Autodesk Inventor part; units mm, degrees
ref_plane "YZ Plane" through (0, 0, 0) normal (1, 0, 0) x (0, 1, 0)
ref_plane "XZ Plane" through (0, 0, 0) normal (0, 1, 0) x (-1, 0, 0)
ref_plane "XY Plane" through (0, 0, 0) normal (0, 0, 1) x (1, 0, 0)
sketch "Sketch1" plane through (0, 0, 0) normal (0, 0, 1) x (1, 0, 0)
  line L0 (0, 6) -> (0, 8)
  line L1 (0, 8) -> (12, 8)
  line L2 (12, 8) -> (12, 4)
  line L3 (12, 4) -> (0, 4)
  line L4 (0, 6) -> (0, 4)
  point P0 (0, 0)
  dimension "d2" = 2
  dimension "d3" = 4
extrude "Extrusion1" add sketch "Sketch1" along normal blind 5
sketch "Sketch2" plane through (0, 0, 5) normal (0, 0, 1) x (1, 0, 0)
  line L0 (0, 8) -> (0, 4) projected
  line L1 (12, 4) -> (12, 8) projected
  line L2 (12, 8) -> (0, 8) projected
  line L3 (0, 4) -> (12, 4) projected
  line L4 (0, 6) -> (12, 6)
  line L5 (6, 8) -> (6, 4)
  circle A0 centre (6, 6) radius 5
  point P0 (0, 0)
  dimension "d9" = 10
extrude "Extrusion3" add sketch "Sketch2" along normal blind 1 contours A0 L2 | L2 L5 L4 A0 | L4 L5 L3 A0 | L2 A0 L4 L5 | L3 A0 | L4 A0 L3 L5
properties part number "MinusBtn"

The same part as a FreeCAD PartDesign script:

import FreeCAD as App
import Part
import Sketcher
from FreeCAD import Vector
Q = App.Units.Quantity


def add_polygon(sketch, points):
    """Adds a closed chain of lines whose ends are joined by coincident constraints."""
    first, n = sketch.GeometryCount, len(points)
    for a, b in zip(points, points[1:] + points[:1]):
        sketch.addGeometry(Part.LineSegment(App.Vector(*a, 0), App.Vector(*b, 0)), False)
    for i in range(n):
        sketch.addConstraint(Sketcher.Constraint("Coincident", first + i, 2, first + (i + 1) % n, 1))

doc = App.newDocument("Part")
params = doc.addObject("Spreadsheet::Sheet", "Params")
for row, (alias, value) in enumerate([
    ("sketch1_height", "4 mm"),
    ("sketch1_width", "12 mm"),
    ("pad1_length", "5 mm"),
    ("sketch2_diameter", "10 mm"),
    ("pad2_length", "1 mm"),
], start=1):
    params.set(f"A{row}", alias)
    params.set(f"B{row}", "=" + value)
    params.setAlias(f"B{row}", alias)

body = doc.addObject("PartDesign::Body", "Body")

sketch1 = body.newObject("Sketcher::SketchObject", "Sketch")
sketch1.AttachmentSupport = (doc.getObject("XY_Plane"), [""])
sketch1.MapMode = "FlatFace"
add_polygon(sketch1, [(0, 8), (0, 4), (12, 4), (12, 8)])
sketch1.addConstraint(Sketcher.Constraint("Vertical", 0))
sketch1.addConstraint(Sketcher.Constraint("Horizontal", 1))
sketch1.addConstraint(Sketcher.Constraint("Vertical", 2))
sketch1.addConstraint(Sketcher.Constraint("Horizontal", 3))
sketch1.addConstraint(Sketcher.Constraint("PointOnObject", 0, 2, -2))
sketch1.addConstraint(Sketcher.Constraint("DistanceY", 0, 2, 0, 1, Q("4 mm")))
sketch1.addConstraint(Sketcher.Constraint("DistanceY", -1, 1, 0, 2, Q("4 mm")))
sketch1.addConstraint(Sketcher.Constraint("DistanceX", 1, 1, 1, 2, Q("12 mm")))
sketch1.setExpression("Constraints[9]", "Params.sketch1_height")
sketch1.setExpression("Constraints[11]", "Params.sketch1_width")
pad1 = body.newObject("PartDesign::Pad", "Pad")
pad1.Profile = sketch1
pad1.setExpression("Length", "Params.pad1_length")

sketch2 = body.newObject("Sketcher::SketchObject", "Sketch001")
sketch2.AttachmentSupport = (doc.getObject("XY_Plane"), [""])
sketch2.MapMode = "FlatFace"
sketch2.AttachmentOffset = App.Placement(Vector(0, 0, 5), App.Rotation())
sketch2.addGeometry(Part.Circle(Vector(6, 6, 0), Vector(0, 0, 1), 5), False)
sketch2.addConstraint(Sketcher.Constraint("Diameter", 0, Q("10 mm")))
sketch2.addConstraint(Sketcher.Constraint("DistanceX", -1, 1, 0, 3, Q("6 mm")))
sketch2.addConstraint(Sketcher.Constraint("DistanceY", -1, 1, 0, 3, Q("6 mm")))
sketch2.setExpression("Constraints[0]", "Params.sketch2_diameter")
pad2 = body.newObject("PartDesign::Pad", "Pad001")
pad2.Profile = sketch2
pad2.setExpression("Length", "Params.pad2_length")

doc.recompute()
